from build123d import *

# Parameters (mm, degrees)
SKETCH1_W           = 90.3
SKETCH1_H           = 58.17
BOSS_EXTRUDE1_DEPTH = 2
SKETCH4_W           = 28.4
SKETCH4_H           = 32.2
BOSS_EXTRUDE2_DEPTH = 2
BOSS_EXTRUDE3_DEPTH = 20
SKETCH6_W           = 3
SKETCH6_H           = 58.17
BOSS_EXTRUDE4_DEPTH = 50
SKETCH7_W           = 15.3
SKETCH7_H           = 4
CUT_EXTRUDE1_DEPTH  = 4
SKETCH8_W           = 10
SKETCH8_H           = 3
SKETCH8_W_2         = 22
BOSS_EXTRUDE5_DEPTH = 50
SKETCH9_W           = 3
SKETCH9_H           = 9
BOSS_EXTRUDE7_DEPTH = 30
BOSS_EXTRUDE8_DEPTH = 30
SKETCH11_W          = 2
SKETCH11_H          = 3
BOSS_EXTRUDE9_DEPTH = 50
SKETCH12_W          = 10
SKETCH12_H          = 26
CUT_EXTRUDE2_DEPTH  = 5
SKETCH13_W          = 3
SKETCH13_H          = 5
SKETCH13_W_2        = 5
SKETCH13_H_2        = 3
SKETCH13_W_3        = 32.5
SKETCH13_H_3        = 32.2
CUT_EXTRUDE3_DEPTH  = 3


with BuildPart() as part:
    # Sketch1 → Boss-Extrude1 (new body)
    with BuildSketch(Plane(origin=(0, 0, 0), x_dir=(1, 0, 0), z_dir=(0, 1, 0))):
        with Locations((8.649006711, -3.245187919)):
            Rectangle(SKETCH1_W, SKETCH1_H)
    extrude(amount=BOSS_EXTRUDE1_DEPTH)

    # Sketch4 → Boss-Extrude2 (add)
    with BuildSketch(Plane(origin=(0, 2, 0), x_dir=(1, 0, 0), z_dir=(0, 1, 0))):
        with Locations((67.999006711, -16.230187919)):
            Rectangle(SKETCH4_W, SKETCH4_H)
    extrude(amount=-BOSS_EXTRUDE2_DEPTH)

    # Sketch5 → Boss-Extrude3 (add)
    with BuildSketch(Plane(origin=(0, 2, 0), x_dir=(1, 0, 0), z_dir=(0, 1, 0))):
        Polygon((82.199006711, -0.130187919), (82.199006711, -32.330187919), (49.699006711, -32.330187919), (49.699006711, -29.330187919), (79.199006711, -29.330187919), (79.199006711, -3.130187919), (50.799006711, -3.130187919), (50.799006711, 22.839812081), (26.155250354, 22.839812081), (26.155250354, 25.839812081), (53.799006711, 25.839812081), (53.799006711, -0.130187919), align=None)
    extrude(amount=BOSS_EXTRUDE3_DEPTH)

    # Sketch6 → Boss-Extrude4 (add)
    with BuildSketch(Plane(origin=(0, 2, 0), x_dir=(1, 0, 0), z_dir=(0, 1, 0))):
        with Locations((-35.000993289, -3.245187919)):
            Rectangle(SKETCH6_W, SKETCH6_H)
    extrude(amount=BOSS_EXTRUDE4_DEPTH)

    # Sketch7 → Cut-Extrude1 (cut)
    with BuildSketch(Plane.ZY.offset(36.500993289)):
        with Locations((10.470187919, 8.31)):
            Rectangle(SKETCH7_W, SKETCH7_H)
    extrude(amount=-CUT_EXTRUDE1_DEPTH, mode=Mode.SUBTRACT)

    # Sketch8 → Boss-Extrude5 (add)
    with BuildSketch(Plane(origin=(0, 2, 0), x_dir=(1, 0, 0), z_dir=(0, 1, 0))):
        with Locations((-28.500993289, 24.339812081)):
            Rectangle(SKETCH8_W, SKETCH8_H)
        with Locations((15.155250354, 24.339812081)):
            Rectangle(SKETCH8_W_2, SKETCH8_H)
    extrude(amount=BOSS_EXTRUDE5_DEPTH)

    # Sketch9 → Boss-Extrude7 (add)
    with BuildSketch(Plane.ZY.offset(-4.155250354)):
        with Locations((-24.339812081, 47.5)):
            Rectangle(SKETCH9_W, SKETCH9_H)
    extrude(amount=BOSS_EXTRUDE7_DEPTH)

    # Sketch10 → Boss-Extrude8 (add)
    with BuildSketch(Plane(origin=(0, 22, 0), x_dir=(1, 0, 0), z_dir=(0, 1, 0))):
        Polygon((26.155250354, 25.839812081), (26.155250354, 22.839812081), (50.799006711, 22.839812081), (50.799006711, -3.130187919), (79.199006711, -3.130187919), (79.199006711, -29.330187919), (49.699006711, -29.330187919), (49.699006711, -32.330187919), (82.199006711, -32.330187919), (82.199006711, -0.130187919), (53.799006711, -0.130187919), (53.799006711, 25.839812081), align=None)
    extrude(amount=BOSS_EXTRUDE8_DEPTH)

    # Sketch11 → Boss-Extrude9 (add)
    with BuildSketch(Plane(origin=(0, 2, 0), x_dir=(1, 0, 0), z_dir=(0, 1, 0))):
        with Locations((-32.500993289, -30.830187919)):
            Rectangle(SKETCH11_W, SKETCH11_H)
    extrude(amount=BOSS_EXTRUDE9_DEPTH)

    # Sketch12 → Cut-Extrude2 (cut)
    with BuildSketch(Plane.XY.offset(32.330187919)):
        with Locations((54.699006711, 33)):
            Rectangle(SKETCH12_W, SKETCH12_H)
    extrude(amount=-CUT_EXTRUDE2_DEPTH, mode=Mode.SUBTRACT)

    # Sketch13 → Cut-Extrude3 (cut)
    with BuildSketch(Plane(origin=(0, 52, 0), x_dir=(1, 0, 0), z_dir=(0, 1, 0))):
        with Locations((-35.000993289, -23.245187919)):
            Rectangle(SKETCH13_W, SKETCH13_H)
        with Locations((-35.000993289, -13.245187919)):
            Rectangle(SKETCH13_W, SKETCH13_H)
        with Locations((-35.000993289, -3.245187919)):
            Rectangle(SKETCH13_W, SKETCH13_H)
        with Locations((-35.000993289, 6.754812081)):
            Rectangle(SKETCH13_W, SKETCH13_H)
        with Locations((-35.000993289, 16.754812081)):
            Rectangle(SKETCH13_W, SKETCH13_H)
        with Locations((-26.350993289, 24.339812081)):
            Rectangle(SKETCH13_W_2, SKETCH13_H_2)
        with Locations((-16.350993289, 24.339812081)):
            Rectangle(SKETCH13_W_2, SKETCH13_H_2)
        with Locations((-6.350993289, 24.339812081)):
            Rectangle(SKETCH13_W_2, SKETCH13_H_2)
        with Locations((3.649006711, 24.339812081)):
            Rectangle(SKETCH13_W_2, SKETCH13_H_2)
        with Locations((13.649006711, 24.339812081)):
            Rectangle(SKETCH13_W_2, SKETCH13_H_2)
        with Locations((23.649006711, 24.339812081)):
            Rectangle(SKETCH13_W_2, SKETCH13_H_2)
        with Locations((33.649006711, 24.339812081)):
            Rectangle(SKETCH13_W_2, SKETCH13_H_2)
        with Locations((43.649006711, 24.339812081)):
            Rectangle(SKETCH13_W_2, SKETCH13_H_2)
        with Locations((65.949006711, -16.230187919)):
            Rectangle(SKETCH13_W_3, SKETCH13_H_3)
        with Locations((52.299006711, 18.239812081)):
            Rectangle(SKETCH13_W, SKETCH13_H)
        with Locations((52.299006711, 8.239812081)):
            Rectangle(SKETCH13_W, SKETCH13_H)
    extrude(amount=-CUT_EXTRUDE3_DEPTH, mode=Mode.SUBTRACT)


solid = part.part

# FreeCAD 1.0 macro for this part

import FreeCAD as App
import Part
import Sketcher

V = App.Vector

doc = App.newDocument("Part")
body = doc.addObject("PartDesign::Body", "Body")

# Sketch on XZ plane
sketch1 = body.newObject("Sketcher::SketchObject", "Sketch")
sketch1.AttachmentSupport = (doc.getObject("XZ_Plane"), [""])
sketch1.MapMode = "FlatFace"
sketch1.addGeometry(Part.LineSegment(V(-37, -26, 0), V(-37, 32, 0)), False)
sketch1.addGeometry(Part.LineSegment(V(-37, 32, 0), V(54, 32, 0)), False)
sketch1.addGeometry(Part.LineSegment(V(54, 32, 0), V(54, -26, 0)), False)
sketch1.addGeometry(Part.LineSegment(V(54, -26, 0), V(-37, -26, 0)), False)
sketch1.addConstraint(Sketcher.Constraint("Coincident", 0, 2, 1, 1))
sketch1.addConstraint(Sketcher.Constraint("Coincident", 1, 2, 2, 1))
sketch1.addConstraint(Sketcher.Constraint("Coincident", 2, 2, 3, 1))
sketch1.addConstraint(Sketcher.Constraint("Coincident", 3, 2, 0, 1))
sketch1.addConstraint(Sketcher.Constraint("Vertical", 0))
sketch1.addConstraint(Sketcher.Constraint("Horizontal", 1))
sketch1.addConstraint(Sketcher.Constraint("Vertical", 2))
sketch1.addConstraint(Sketcher.Constraint("Horizontal", 3))
sketch1.addConstraint(Sketcher.Constraint("DistanceX", 1, 1, 1, 2, 90.3))
sketch1.addConstraint(Sketcher.Constraint("DistanceY", 0, 1, 0, 2, 58.17))
sketch1.addConstraint(Sketcher.Constraint("DistanceX", 0, 2, -1, 1, 36.500993))
sketch1.addConstraint(Sketcher.Constraint("DistanceY", -1, 1, 0, 2, 32.330188))
pad1 = body.newObject("PartDesign::Pad", "Pad")
pad1.Profile = sketch1
pad1.Length = 2
pad1.Reversed = True

# Sketch on XZ plane
sketch2 = body.newObject("Sketcher::SketchObject", "Sketch001")
sketch2.AttachmentSupport = (doc.getObject("XZ_Plane"), [""])
sketch2.MapMode = "FlatFace"
sketch2.AttachmentOffset = App.Placement(V(0, 0, -2), App.Rotation())
sketch2.addGeometry(Part.LineSegment(V(54, 0, 0), V(54, 32, 0)), False)
sketch2.addGeometry(Part.LineSegment(V(54, 32, 0), V(82, 32, 0)), False)
sketch2.addGeometry(Part.LineSegment(V(82, 32, 0), V(82, 0, 0)), False)
sketch2.addGeometry(Part.LineSegment(V(82, 0, 0), V(54, 0, 0)), False)
sketch2.addConstraint(Sketcher.Constraint("Coincident", 0, 2, 1, 1))
sketch2.addConstraint(Sketcher.Constraint("Coincident", 1, 2, 2, 1))
sketch2.addConstraint(Sketcher.Constraint("Coincident", 2, 2, 3, 1))
sketch2.addConstraint(Sketcher.Constraint("Coincident", 3, 2, 0, 1))
sketch2.addConstraint(Sketcher.Constraint("Vertical", 0))
sketch2.addConstraint(Sketcher.Constraint("Horizontal", 1))
sketch2.addConstraint(Sketcher.Constraint("Vertical", 2))
sketch2.addConstraint(Sketcher.Constraint("Horizontal", 3))
sketch2.addConstraint(Sketcher.Constraint("DistanceX", 1, 1, 1, 2, 28.4))
sketch2.addConstraint(Sketcher.Constraint("DistanceY", 0, 1, 0, 2, 32.2))
sketch2.addConstraint(Sketcher.Constraint("DistanceX", -1, 1, 0, 2, 53.799007))
sketch2.addConstraint(Sketcher.Constraint("DistanceY", -1, 1, 0, 2, 32.330188))
pad2 = body.newObject("PartDesign::Pad", "Pad001")
pad2.Profile = sketch2
pad2.Length = 2

# Sketch on XZ plane
sketch3 = body.newObject("Sketcher::SketchObject", "Sketch002")
sketch3.AttachmentSupport = (doc.getObject("XZ_Plane"), [""])
sketch3.MapMode = "FlatFace"
sketch3.AttachmentOffset = App.Placement(V(0, 0, -2), App.Rotation())
sketch3.addGeometry(Part.LineSegment(V(82.2, 32.3, 0), V(82.2, 0.1, 0)), False)
sketch3.addGeometry(Part.LineSegment(V(82.2, 0.1, 0), V(53.8, 0.1, 0)), False)
sketch3.addGeometry(Part.LineSegment(V(53.8, 0.1, 0), V(53.8, -25.8, 0)), False)
sketch3.addGeometry(Part.LineSegment(V(53.8, -25.8, 0), V(26.2, -25.8, 0)), False)
sketch3.addGeometry(Part.LineSegment(V(26.2, -25.8, 0), V(26.2, -22.8, 0)), False)
sketch3.addGeometry(Part.LineSegment(V(26.2, -22.8, 0), V(50.8, -22.8, 0)), False)
sketch3.addGeometry(Part.LineSegment(V(50.8, -22.8, 0), V(50.8, 3.1, 0)), False)
sketch3.addGeometry(Part.LineSegment(V(50.8, 3.1, 0), V(79.2, 3.1, 0)), False)
sketch3.addGeometry(Part.LineSegment(V(79.2, 3.1, 0), V(79.2, 29.3, 0)), False)
sketch3.addGeometry(Part.LineSegment(V(79.2, 29.3, 0), V(49.7, 29.3, 0)), False)
sketch3.addGeometry(Part.LineSegment(V(49.7, 29.3, 0), V(49.7, 32.3, 0)), False)
sketch3.addGeometry(Part.LineSegment(V(49.7, 32.3, 0), V(82.2, 32.3, 0)), False)
sketch3.addConstraint(Sketcher.Constraint("Coincident", 0, 2, 1, 1))
sketch3.addConstraint(Sketcher.Constraint("Coincident", 1, 2, 2, 1))
sketch3.addConstraint(Sketcher.Constraint("Coincident", 2, 2, 3, 1))
sketch3.addConstraint(Sketcher.Constraint("Coincident", 3, 2, 4, 1))
sketch3.addConstraint(Sketcher.Constraint("Coincident", 4, 2, 5, 1))
sketch3.addConstraint(Sketcher.Constraint("Coincident", 5, 2, 6, 1))
sketch3.addConstraint(Sketcher.Constraint("Coincident", 6, 2, 7, 1))
sketch3.addConstraint(Sketcher.Constraint("Coincident", 7, 2, 8, 1))
sketch3.addConstraint(Sketcher.Constraint("Coincident", 8, 2, 9, 1))
sketch3.addConstraint(Sketcher.Constraint("Coincident", 9, 2, 10, 1))
sketch3.addConstraint(Sketcher.Constraint("Coincident", 10, 2, 11, 1))
sketch3.addConstraint(Sketcher.Constraint("Coincident", 11, 2, 0, 1))
sketch3.addConstraint(Sketcher.Constraint("Vertical", 0))
sketch3.addConstraint(Sketcher.Constraint("Horizontal", 1))
sketch3.addConstraint(Sketcher.Constraint("Vertical", 2))
sketch3.addConstraint(Sketcher.Constraint("Horizontal", 3))
sketch3.addConstraint(Sketcher.Constraint("Vertical", 4))
sketch3.addConstraint(Sketcher.Constraint("Horizontal", 5))
sketch3.addConstraint(Sketcher.Constraint("Vertical", 6))
sketch3.addConstraint(Sketcher.Constraint("Horizontal", 7))
sketch3.addConstraint(Sketcher.Constraint("Vertical", 8))
sketch3.addConstraint(Sketcher.Constraint("Horizontal", 9))
sketch3.addConstraint(Sketcher.Constraint("Vertical", 10))
sketch3.addConstraint(Sketcher.Constraint("Horizontal", 11))
sketch3.addConstraint(Sketcher.Constraint("Equal", 1, 7))
sketch3.addConstraint(Sketcher.Constraint("Equal", 2, 6))
sketch3.addConstraint(Sketcher.Constraint("Equal", 4, 10))
sketch3.addConstraint(Sketcher.Constraint("DistanceY", 4, 1, 4, 2, 3.0))
sketch3.addConstraint(Sketcher.Constraint("DistanceX", 1, 2, 1, 1, 28.4))
sketch3.addConstraint(Sketcher.Constraint("DistanceX", 9, 2, 9, 1, 29.5))
sketch3.addConstraint(Sketcher.Constraint("DistanceX", 11, 1, 11, 2, 32.5))
sketch3.addConstraint(Sketcher.Constraint("DistanceY", 0, 2, 0, 1, 32.2))
sketch3.addConstraint(Sketcher.Constraint("DistanceY", 2, 2, 2, 1, 25.97))
sketch3.addConstraint(Sketcher.Constraint("DistanceX", 3, 2, 3, 1, 27.643756))
sketch3.addConstraint(Sketcher.Constraint("DistanceX", -1, 1, 3, 2, 26.15525))
sketch3.addConstraint(Sketcher.Constraint("DistanceY", -1, 1, 0, 2, 0.130188))
pad3 = body.newObject("PartDesign::Pad", "Pad002")
pad3.Profile = sketch3
pad3.Length = 20
pad3.Reversed = True

# Sketch on XZ plane
sketch4 = body.newObject("Sketcher::SketchObject", "Sketch003")
sketch4.AttachmentSupport = (doc.getObject("XZ_Plane"), [""])
sketch4.MapMode = "FlatFace"
sketch4.AttachmentOffset = App.Placement(V(0, 0, -2), App.Rotation())
sketch4.addGeometry(Part.LineSegment(V(-36.5, -25.8, 0), V(-36.5, 32.3, 0)), False)
sketch4.addGeometry(Part.LineSegment(V(-36.5, 32.3, 0), V(-33.5, 32.3, 0)), False)
sketch4.addGeometry(Part.LineSegment(V(-33.5, 32.3, 0), V(-33.5, -25.8, 0)), False)
sketch4.addGeometry(Part.LineSegment(V(-33.5, -25.8, 0), V(-36.5, -25.8, 0)), False)
sketch4.addConstraint(Sketcher.Constraint("Coincident", 0, 2, 1, 1))
sketch4.addConstraint(Sketcher.Constraint("Coincident", 1, 2, 2, 1))
sketch4.addConstraint(Sketcher.Constraint("Coincident", 2, 2, 3, 1))
sketch4.addConstraint(Sketcher.Constraint("Coincident", 3, 2, 0, 1))
sketch4.addConstraint(Sketcher.Constraint("Vertical", 0))
sketch4.addConstraint(Sketcher.Constraint("Horizontal", 1))
sketch4.addConstraint(Sketcher.Constraint("Vertical", 2))
sketch4.addConstraint(Sketcher.Constraint("Horizontal", 3))
sketch4.addConstraint(Sketcher.Constraint("DistanceX", 1, 1, 1, 2, 3.0))
sketch4.addConstraint(Sketcher.Constraint("DistanceY", 0, 1, 0, 2, 58.17))
sketch4.addConstraint(Sketcher.Constraint("DistanceX", 0, 2, -1, 1, 36.500993))
sketch4.addConstraint(Sketcher.Constraint("DistanceY", -1, 1, 0, 2, 32.330188))
pad4 = body.newObject("PartDesign::Pad", "Pad003")
pad4.Profile = sketch4
pad4.Length = 50
pad4.Reversed = True

# Sketch on YZ plane
sketch5 = body.newObject("Sketcher::SketchObject", "Sketch004")
sketch5.AttachmentSupport = (doc.getObject("YZ_Plane"), [""])
sketch5.MapMode = "FlatFace"
sketch5.AttachmentOffset = App.Placement(V(0, 0, -36.500993), App.Rotation())
sketch5.addGeometry(Part.LineSegment(V(10.3, 2.8, 0), V(6.3, 2.8, 0)), False)
sketch5.addGeometry(Part.LineSegment(V(6.3, 2.8, 0), V(6.3, 18.1, 0)), False)
sketch5.addGeometry(Part.LineSegment(V(6.3, 18.1, 0), V(10.3, 18.1, 0)), False)
sketch5.addGeometry(Part.LineSegment(V(10.3, 18.1, 0), V(10.3, 2.8, 0)), False)
sketch5.addConstraint(Sketcher.Constraint("Coincident", 0, 2, 1, 1))
sketch5.addConstraint(Sketcher.Constraint("Coincident", 1, 2, 2, 1))
sketch5.addConstraint(Sketcher.Constraint("Coincident", 2, 2, 3, 1))
sketch5.addConstraint(Sketcher.Constraint("Coincident", 3, 2, 0, 1))
sketch5.addConstraint(Sketcher.Constraint("Horizontal", 0))
sketch5.addConstraint(Sketcher.Constraint("Vertical", 1))
sketch5.addConstraint(Sketcher.Constraint("Horizontal", 2))
sketch5.addConstraint(Sketcher.Constraint("Vertical", 3))
sketch5.addConstraint(Sketcher.Constraint("DistanceX", 0, 2, 0, 1, 4.0))
sketch5.addConstraint(Sketcher.Constraint("DistanceY", 1, 1, 1, 2, 15.3))
sketch5.addConstraint(Sketcher.Constraint("DistanceX", -1, 1, 0, 2, 6.31))
sketch5.addConstraint(Sketcher.Constraint("DistanceY", -1, 1, 0, 2, 2.820188))
pocket1 = body.newObject("PartDesign::Pocket", "Pocket")
pocket1.Profile = sketch5
pocket1.Length = 4
pocket1.Reversed = True

# Sketch on XZ plane
sketch6 = body.newObject("Sketcher::SketchObject", "Sketch005")
sketch6.AttachmentSupport = (doc.getObject("XZ_Plane"), [""])
sketch6.MapMode = "FlatFace"
sketch6.AttachmentOffset = App.Placement(V(0, 0, -2), App.Rotation())
sketch6.addGeometry(Part.LineSegment(V(-33.5, -25.8, 0), V(-33.5, -22.8, 0)), False)
sketch6.addGeometry(Part.LineSegment(V(-33.5, -22.8, 0), V(-23.5, -22.8, 0)), False)
sketch6.addGeometry(Part.LineSegment(V(-23.5, -22.8, 0), V(-23.5, -25.8, 0)), False)
sketch6.addGeometry(Part.LineSegment(V(-23.5, -25.8, 0), V(-33.5, -25.8, 0)), False)
sketch6.addGeometry(Part.LineSegment(V(4.2, -25.8, 0), V(4.2, -22.8, 0)), False)
sketch6.addGeometry(Part.LineSegment(V(4.2, -22.8, 0), V(26.2, -22.8, 0)), False)
sketch6.addGeometry(Part.LineSegment(V(26.2, -22.8, 0), V(26.2, -25.8, 0)), False)
sketch6.addGeometry(Part.LineSegment(V(26.2, -25.8, 0), V(4.2, -25.8, 0)), False)
sketch6.addConstraint(Sketcher.Constraint("Coincident", 0, 2, 1, 1))
sketch6.addConstraint(Sketcher.Constraint("Coincident", 1, 2, 2, 1))
sketch6.addConstraint(Sketcher.Constraint("Coincident", 2, 2, 3, 1))
sketch6.addConstraint(Sketcher.Constraint("Coincident", 3, 2, 0, 1))
sketch6.addConstraint(Sketcher.Constraint("Coincident", 4, 2, 5, 1))
sketch6.addConstraint(Sketcher.Constraint("Coincident", 5, 2, 6, 1))
sketch6.addConstraint(Sketcher.Constraint("Coincident", 6, 2, 7, 1))
sketch6.addConstraint(Sketcher.Constraint("Coincident", 7, 2, 4, 1))
sketch6.addConstraint(Sketcher.Constraint("Vertical", 0))
sketch6.addConstraint(Sketcher.Constraint("Horizontal", 1))
sketch6.addConstraint(Sketcher.Constraint("Vertical", 2))
sketch6.addConstraint(Sketcher.Constraint("Horizontal", 3))
sketch6.addConstraint(Sketcher.Constraint("Vertical", 4))
sketch6.addConstraint(Sketcher.Constraint("Horizontal", 5))
sketch6.addConstraint(Sketcher.Constraint("Vertical", 6))
sketch6.addConstraint(Sketcher.Constraint("Horizontal", 7))
sketch6.addConstraint(Sketcher.Constraint("Horizontal", 1, 2, 4, 2))
sketch6.addConstraint(Sketcher.Constraint("Horizontal", 3, 2, 6, 2))
sketch6.addConstraint(Sketcher.Constraint("DistanceX", 1, 1, 1, 2, 10.0))
sketch6.addConstraint(Sketcher.Constraint("DistanceX", 5, 1, 5, 2, 22.0))
sketch6.addConstraint(Sketcher.Constraint("DistanceY", 0, 1, 0, 2, 3.0))
sketch6.addConstraint(Sketcher.Constraint("DistanceX", -1, 1, 4, 2, 4.15525))
sketch6.addConstraint(Sketcher.Constraint("DistanceX", 0, 2, -1, 1, 33.500993))
sketch6.addConstraint(Sketcher.Constraint("DistanceY", 0, 2, -1, 1, 22.839812))
pad5 = body.newObject("PartDesign::Pad", "Pad004")
pad5.Profile = sketch6
pad5.Length = 50
pad5.Reversed = True

# Sketch on YZ plane
sketch7 = body.newObject("Sketcher::SketchObject", "Sketch006")
sketch7.AttachmentSupport = (doc.getObject("YZ_Plane"), [""])
sketch7.MapMode = "FlatFace"
sketch7.AttachmentOffset = App.Placement(V(0, 0, 4.15525), App.Rotation())
sketch7.addGeometry(Part.LineSegment(V(52, -25.8, 0), V(43, -25.8, 0)), False)
sketch7.addGeometry(Part.LineSegment(V(43, -25.8, 0), V(43, -22.8, 0)), False)
sketch7.addGeometry(Part.LineSegment(V(43, -22.8, 0), V(52, -22.8, 0)), False)
sketch7.addGeometry(Part.LineSegment(V(52, -22.8, 0), V(52, -25.8, 0)), False)
sketch7.addConstraint(Sketcher.Constraint("Coincident", 0, 2, 1, 1))
sketch7.addConstraint(Sketcher.Constraint("Coincident", 1, 2, 2, 1))
sketch7.addConstraint(Sketcher.Constraint("Coincident", 2, 2, 3, 1))
sketch7.addConstraint(Sketcher.Constraint("Coincident", 3, 2, 0, 1))
sketch7.addConstraint(Sketcher.Constraint("Horizontal", 0))
sketch7.addConstraint(Sketcher.Constraint("Vertical", 1))
sketch7.addConstraint(Sketcher.Constraint("Horizontal", 2))
sketch7.addConstraint(Sketcher.Constraint("Vertical", 3))
sketch7.addConstraint(Sketcher.Constraint("DistanceX", 0, 2, 0, 1, 9.0))
sketch7.addConstraint(Sketcher.Constraint("DistanceY", 1, 1, 1, 2, 3.0))
sketch7.addConstraint(Sketcher.Constraint("DistanceX", -1, 1, 0, 2, 43.0))
sketch7.addConstraint(Sketcher.Constraint("DistanceY", 0, 2, -1, 1, 25.839812))
pad6 = body.newObject("PartDesign::Pad", "Pad005")
pad6.Profile = sketch7
pad6.Length = 30
pad6.Reversed = True

# Sketch on XZ plane
sketch8 = body.newObject("Sketcher::SketchObject", "Sketch007")
sketch8.AttachmentSupport = (doc.getObject("XZ_Plane"), [""])
sketch8.MapMode = "FlatFace"
sketch8.AttachmentOffset = App.Placement(V(0, 0, -22), App.Rotation())
sketch8.addGeometry(Part.LineSegment(V(26.2, -25.8, 0), V(26.2, -22.8, 0)), False)
sketch8.addGeometry(Part.LineSegment(V(26.2, -22.8, 0), V(50.8, -22.8, 0)), False)
sketch8.addGeometry(Part.LineSegment(V(50.8, -22.8, 0), V(50.8, 3.1, 0)), False)
sketch8.addGeometry(Part.LineSegment(V(50.8, 3.1, 0), V(79.2, 3.1, 0)), False)
sketch8.addGeometry(Part.LineSegment(V(79.2, 3.1, 0), V(79.2, 29.3, 0)), False)
sketch8.addGeometry(Part.LineSegment(V(79.2, 29.3, 0), V(49.7, 29.3, 0)), False)
sketch8.addGeometry(Part.LineSegment(V(49.7, 29.3, 0), V(49.7, 32.3, 0)), False)
sketch8.addGeometry(Part.LineSegment(V(49.7, 32.3, 0), V(82.2, 32.3, 0)), False)
sketch8.addGeometry(Part.LineSegment(V(82.2, 32.3, 0), V(82.2, 0.1, 0)), False)
sketch8.addGeometry(Part.LineSegment(V(82.2, 0.1, 0), V(53.8, 0.1, 0)), False)
sketch8.addGeometry(Part.LineSegment(V(53.8, 0.1, 0), V(53.8, -25.8, 0)), False)
sketch8.addGeometry(Part.LineSegment(V(53.8, -25.8, 0), V(26.2, -25.8, 0)), False)
sketch8.addConstraint(Sketcher.Constraint("Coincident", 0, 2, 1, 1))
sketch8.addConstraint(Sketcher.Constraint("Coincident", 1, 2, 2, 1))
sketch8.addConstraint(Sketcher.Constraint("Coincident", 2, 2, 3, 1))
sketch8.addConstraint(Sketcher.Constraint("Coincident", 3, 2, 4, 1))
sketch8.addConstraint(Sketcher.Constraint("Coincident", 4, 2, 5, 1))
sketch8.addConstraint(Sketcher.Constraint("Coincident", 5, 2, 6, 1))
sketch8.addConstraint(Sketcher.Constraint("Coincident", 6, 2, 7, 1))
sketch8.addConstraint(Sketcher.Constraint("Coincident", 7, 2, 8, 1))
sketch8.addConstraint(Sketcher.Constraint("Coincident", 8, 2, 9, 1))
sketch8.addConstraint(Sketcher.Constraint("Coincident", 9, 2, 10, 1))
sketch8.addConstraint(Sketcher.Constraint("Coincident", 10, 2, 11, 1))
sketch8.addConstraint(Sketcher.Constraint("Coincident", 11, 2, 0, 1))
sketch8.addConstraint(Sketcher.Constraint("Vertical", 0))
sketch8.addConstraint(Sketcher.Constraint("Horizontal", 1))
sketch8.addConstraint(Sketcher.Constraint("Vertical", 2))
sketch8.addConstraint(Sketcher.Constraint("Horizontal", 3))
sketch8.addConstraint(Sketcher.Constraint("Vertical", 4))
sketch8.addConstraint(Sketcher.Constraint("Horizontal", 5))
sketch8.addConstraint(Sketcher.Constraint("Vertical", 6))
sketch8.addConstraint(Sketcher.Constraint("Horizontal", 7))
sketch8.addConstraint(Sketcher.Constraint("Vertical", 8))
sketch8.addConstraint(Sketcher.Constraint("Horizontal", 9))
sketch8.addConstraint(Sketcher.Constraint("Vertical", 10))
sketch8.addConstraint(Sketcher.Constraint("Horizontal", 11))
sketch8.addConstraint(Sketcher.Constraint("Equal", 3, 9))
sketch8.addConstraint(Sketcher.Constraint("Equal", 0, 6))
sketch8.addConstraint(Sketcher.Constraint("Equal", 2, 10))
sketch8.addConstraint(Sketcher.Constraint("DistanceY", 0, 1, 0, 2, 3.0))
sketch8.addConstraint(Sketcher.Constraint("DistanceX", 3, 1, 3, 2, 28.4))
sketch8.addConstraint(Sketcher.Constraint("DistanceX", 5, 2, 5, 1, 29.5))
sketch8.addConstraint(Sketcher.Constraint("DistanceX", 7, 1, 7, 2, 32.5))
sketch8.addConstraint(Sketcher.Constraint("DistanceY", 4, 1, 4, 2, 26.2))
sketch8.addConstraint(Sketcher.Constraint("DistanceY", 2, 1, 2, 2, 25.97))
sketch8.addConstraint(Sketcher.Constraint("DistanceX", 1, 1, 1, 2, 24.643756))
sketch8.addConstraint(Sketcher.Constraint("DistanceX", -1, 1, 0, 2, 26.15525))
sketch8.addConstraint(Sketcher.Constraint("DistanceY", 0, 2, -1, 1, 22.839812))
pad7 = body.newObject("PartDesign::Pad", "Pad006")
pad7.Profile = sketch8
pad7.Length = 30
pad7.Reversed = True

# Sketch on XZ plane
sketch9 = body.newObject("Sketcher::SketchObject", "Sketch008")
sketch9.AttachmentSupport = (doc.getObject("XZ_Plane"), [""])
sketch9.MapMode = "FlatFace"
sketch9.AttachmentOffset = App.Placement(V(0, 0, -2), App.Rotation())
sketch9.addGeometry(Part.LineSegment(V(-33.5, 29.3, 0), V(-33.5, 32.3, 0)), False)
sketch9.addGeometry(Part.LineSegment(V(-33.5, 32.3, 0), V(-31.5, 32.3, 0)), False)
sketch9.addGeometry(Part.LineSegment(V(-31.5, 32.3, 0), V(-31.5, 29.3, 0)), False)
sketch9.addGeometry(Part.LineSegment(V(-31.5, 29.3, 0), V(-33.5, 29.3, 0)), False)
sketch9.addConstraint(Sketcher.Constraint("Coincident", 0, 2, 1, 1))
sketch9.addConstraint(Sketcher.Constraint("Coincident", 1, 2, 2, 1))
sketch9.addConstraint(Sketcher.Constraint("Coincident", 2, 2, 3, 1))
sketch9.addConstraint(Sketcher.Constraint("Coincident", 3, 2, 0, 1))
sketch9.addConstraint(Sketcher.Constraint("Vertical", 0))
sketch9.addConstraint(Sketcher.Constraint("Horizontal", 1))
sketch9.addConstraint(Sketcher.Constraint("Vertical", 2))
sketch9.addConstraint(Sketcher.Constraint("Horizontal", 3))
sketch9.addConstraint(Sketcher.Constraint("DistanceX", 1, 1, 1, 2, 2.0))
sketch9.addConstraint(Sketcher.Constraint("DistanceY", 0, 1, 0, 2, 3.0))
sketch9.addConstraint(Sketcher.Constraint("DistanceX", 0, 2, -1, 1, 33.500993))
sketch9.addConstraint(Sketcher.Constraint("DistanceY", -1, 1, 0, 2, 32.330188))
pad8 = body.newObject("PartDesign::Pad", "Pad007")
pad8.Profile = sketch9
pad8.Length = 50
pad8.Reversed = True

# Sketch on XY plane
sketch10 = body.newObject("Sketcher::SketchObject", "Sketch009")
sketch10.AttachmentSupport = (doc.getObject("XY_Plane"), [""])
sketch10.MapMode = "FlatFace"
sketch10.AttachmentOffset = App.Placement(V(0, 0, 32.330188), App.Rotation())
sketch10.addGeometry(Part.LineSegment(V(50, 46, 0), V(50, 20, 0)), False)
sketch10.addGeometry(Part.LineSegment(V(50, 20, 0), V(60, 20, 0)), False)
sketch10.addGeometry(Part.LineSegment(V(60, 20, 0), V(60, 46, 0)), False)
sketch10.addGeometry(Part.LineSegment(V(60, 46, 0), V(50, 46, 0)), False)
sketch10.addConstraint(Sketcher.Constraint("Coincident", 0, 2, 1, 1))
sketch10.addConstraint(Sketcher.Constraint("Coincident", 1, 2, 2, 1))
sketch10.addConstraint(Sketcher.Constraint("Coincident", 2, 2, 3, 1))
sketch10.addConstraint(Sketcher.Constraint("Coincident", 3, 2, 0, 1))
sketch10.addConstraint(Sketcher.Constraint("Vertical", 0))
sketch10.addConstraint(Sketcher.Constraint("Horizontal", 1))
sketch10.addConstraint(Sketcher.Constraint("Vertical", 2))
sketch10.addConstraint(Sketcher.Constraint("Horizontal", 3))
sketch10.addConstraint(Sketcher.Constraint("DistanceX", 1, 1, 1, 2, 10.0))
sketch10.addConstraint(Sketcher.Constraint("DistanceY", 0, 2, 0, 1, 26.0))
sketch10.addConstraint(Sketcher.Constraint("DistanceY", -1, 1, 0, 2, 20.0))
sketch10.addConstraint(Sketcher.Constraint("DistanceX", -1, 1, 0, 2, 49.699007))
pocket2 = body.newObject("PartDesign::Pocket", "Pocket001")
pocket2.Profile = sketch10
pocket2.Length = 5

# Sketch on XZ plane
sketch11 = body.newObject("Sketcher::SketchObject", "Sketch010")
sketch11.AttachmentSupport = (doc.getObject("XZ_Plane"), [""])
sketch11.MapMode = "FlatFace"
sketch11.AttachmentOffset = App.Placement(V(0, 0, -52), App.Rotation())
sketch11.addGeometry(Part.LineSegment(V(-36.5, 20.7, 0), V(-36.5, 25.7, 0)), False)
sketch11.addGeometry(Part.LineSegment(V(-36.5, 25.7, 0), V(-33.5, 25.7, 0)), False)
sketch11.addGeometry(Part.LineSegment(V(-33.5, 25.7, 0), V(-33.5, 20.7, 0)), False)
sketch11.addGeometry(Part.LineSegment(V(-33.5, 20.7, 0), V(-36.5, 20.7, 0)), False)
sketch11.addGeometry(Part.LineSegment(V(-36.5, 10.7, 0), V(-36.5, 15.7, 0)), False)
sketch11.addGeometry(Part.LineSegment(V(-36.5, 15.7, 0), V(-33.5, 15.7, 0)), False)
sketch11.addGeometry(Part.LineSegment(V(-33.5, 15.7, 0), V(-33.5, 10.7, 0)), False)
sketch11.addGeometry(Part.LineSegment(V(-33.5, 10.7, 0), V(-36.5, 10.7, 0)), False)
sketch11.addGeometry(Part.LineSegment(V(-36.5, 0.7, 0), V(-36.5, 5.7, 0)), False)
sketch11.addGeometry(Part.LineSegment(V(-36.5, 5.7, 0), V(-33.5, 5.7, 0)), False)
sketch11.addGeometry(Part.LineSegment(V(-33.5, 5.7, 0), V(-33.5, 0.7, 0)), False)
sketch11.addGeometry(Part.LineSegment(V(-33.5, 0.7, 0), V(-36.5, 0.7, 0)), False)
sketch11.addGeometry(Part.LineSegment(V(-36.5, -9.3, 0), V(-36.5, -4.3, 0)), False)
sketch11.addGeometry(Part.LineSegment(V(-36.5, -4.3, 0), V(-33.5, -4.3, 0)), False)
sketch11.addGeometry(Part.LineSegment(V(-33.5, -4.3, 0), V(-33.5, -9.3, 0)), False)
sketch11.addGeometry(Part.LineSegment(V(-33.5, -9.3, 0), V(-36.5, -9.3, 0)), False)
sketch11.addGeometry(Part.LineSegment(V(-36.5, -19.3, 0), V(-36.5, -14.3, 0)), False)
sketch11.addGeometry(Part.LineSegment(V(-36.5, -14.3, 0), V(-33.5, -14.3, 0)), False)
sketch11.addGeometry(Part.LineSegment(V(-33.5, -14.3, 0), V(-33.5, -19.3, 0)), False)
sketch11.addGeometry(Part.LineSegment(V(-33.5, -19.3, 0), V(-36.5, -19.3, 0)), False)
sketch11.addGeometry(Part.LineSegment(V(-28.9, -25.8, 0), V(-28.9, -22.8, 0)), False)
sketch11.addGeometry(Part.LineSegment(V(-28.9, -22.8, 0), V(-23.9, -22.8, 0)), False)
sketch11.addGeometry(Part.LineSegment(V(-23.9, -22.8, 0), V(-23.9, -25.8, 0)), False)
sketch11.addGeometry(Part.LineSegment(V(-23.9, -25.8, 0), V(-28.9, -25.8, 0)), False)
sketch11.addGeometry(Part.LineSegment(V(-18.9, -25.8, 0), V(-18.9, -22.8, 0)), False)
sketch11.addGeometry(Part.LineSegment(V(-18.9, -22.8, 0), V(-13.9, -22.8, 0)), False)
sketch11.addGeometry(Part.LineSegment(V(-13.9, -22.8, 0), V(-13.9, -25.8, 0)), False)
sketch11.addGeometry(Part.LineSegment(V(-13.9, -25.8, 0), V(-18.9, -25.8, 0)), False)
sketch11.addGeometry(Part.LineSegment(V(-8.9, -25.8, 0), V(-8.9, -22.8, 0)), False)
sketch11.addGeometry(Part.LineSegment(V(-8.9, -22.8, 0), V(-3.9, -22.8, 0)), False)
sketch11.addGeometry(Part.LineSegment(V(-3.9, -22.8, 0), V(-3.9, -25.8, 0)), False)
sketch11.addGeometry(Part.LineSegment(V(-3.9, -25.8, 0), V(-8.9, -25.8, 0)), False)
sketch11.addGeometry(Part.LineSegment(V(1.1, -25.8, 0), V(1.1, -22.8, 0)), False)
sketch11.addGeometry(Part.LineSegment(V(1.1, -22.8, 0), V(6.1, -22.8, 0)), False)
sketch11.addGeometry(Part.LineSegment(V(6.1, -22.8, 0), V(6.1, -25.8, 0)), False)
sketch11.addGeometry(Part.LineSegment(V(6.1, -25.8, 0), V(1.1, -25.8, 0)), False)
sketch11.addGeometry(Part.LineSegment(V(11.1, -25.8, 0), V(11.1, -22.8, 0)), False)
sketch11.addGeometry(Part.LineSegment(V(11.1, -22.8, 0), V(16.1, -22.8, 0)), False)
sketch11.addGeometry(Part.LineSegment(V(16.1, -22.8, 0), V(16.1, -25.8, 0)), False)
sketch11.addGeometry(Part.LineSegment(V(16.1, -25.8, 0), V(11.1, -25.8, 0)), False)
sketch11.addGeometry(Part.LineSegment(V(21.1, -25.8, 0), V(21.1, -22.8, 0)), False)
sketch11.addGeometry(Part.LineSegment(V(21.1, -22.8, 0), V(26.1, -22.8, 0)), False)
sketch11.addGeometry(Part.LineSegment(V(26.1, -22.8, 0), V(26.1, -25.8, 0)), False)
sketch11.addGeometry(Part.LineSegment(V(26.1, -25.8, 0), V(21.1, -25.8, 0)), False)
sketch11.addGeometry(Part.LineSegment(V(31.1, -25.8, 0), V(31.1, -22.8, 0)), False)
sketch11.addGeometry(Part.LineSegment(V(31.1, -22.8, 0), V(36.1, -22.8, 0)), False)
sketch11.addGeometry(Part.LineSegment(V(36.1, -22.8, 0), V(36.1, -25.8, 0)), False)
sketch11.addGeometry(Part.LineSegment(V(36.1, -25.8, 0), V(31.1, -25.8, 0)), False)
sketch11.addGeometry(Part.LineSegment(V(41.1, -25.8, 0), V(41.1, -22.8, 0)), False)
sketch11.addGeometry(Part.LineSegment(V(41.1, -22.8, 0), V(46.1, -22.8, 0)), False)
sketch11.addGeometry(Part.LineSegment(V(46.1, -22.8, 0), V(46.1, -25.8, 0)), False)
sketch11.addGeometry(Part.LineSegment(V(46.1, -25.8, 0), V(41.1, -25.8, 0)), False)
sketch11.addGeometry(Part.LineSegment(V(49.7, 0.1, 0), V(49.7, 32.3, 0)), False)
sketch11.addGeometry(Part.LineSegment(V(49.7, 32.3, 0), V(82.2, 32.3, 0)), False)
sketch11.addGeometry(Part.LineSegment(V(82.2, 32.3, 0), V(82.2, 0.1, 0)), False)
sketch11.addGeometry(Part.LineSegment(V(82.2, 0.1, 0), V(49.7, 0.1, 0)), False)
sketch11.addGeometry(Part.LineSegment(V(50.8, -20.7, 0), V(50.8, -15.7, 0)), False)
sketch11.addGeometry(Part.LineSegment(V(50.8, -15.7, 0), V(53.8, -15.7, 0)), False)
sketch11.addGeometry(Part.LineSegment(V(53.8, -15.7, 0), V(53.8, -20.7, 0)), False)
sketch11.addGeometry(Part.LineSegment(V(53.8, -20.7, 0), V(50.8, -20.7, 0)), False)
sketch11.addGeometry(Part.LineSegment(V(50.8, -10.7, 0), V(50.8, -5.7, 0)), False)
sketch11.addGeometry(Part.LineSegment(V(50.8, -5.7, 0), V(53.8, -5.7, 0)), False)
sketch11.addGeometry(Part.LineSegment(V(53.8, -5.7, 0), V(53.8, -10.7, 0)), False)
sketch11.addGeometry(Part.LineSegment(V(53.8, -10.7, 0), V(50.8, -10.7, 0)), False)
sketch11.addConstraint(Sketcher.Constraint("Coincident", 0, 2, 1, 1))
sketch11.addConstraint(Sketcher.Constraint("Coincident", 1, 2, 2, 1))
sketch11.addConstraint(Sketcher.Constraint("Coincident", 2, 2, 3, 1))
sketch11.addConstraint(Sketcher.Constraint("Coincident", 3, 2, 0, 1))
sketch11.addConstraint(Sketcher.Constraint("Coincident", 4, 2, 5, 1))
sketch11.addConstraint(Sketcher.Constraint("Coincident", 5, 2, 6, 1))
sketch11.addConstraint(Sketcher.Constraint("Coincident", 6, 2, 7, 1))
sketch11.addConstraint(Sketcher.Constraint("Coincident", 7, 2, 4, 1))
sketch11.addConstraint(Sketcher.Constraint("Coincident", 8, 2, 9, 1))
sketch11.addConstraint(Sketcher.Constraint("Coincident", 9, 2, 10, 1))
sketch11.addConstraint(Sketcher.Constraint("Coincident", 10, 2, 11, 1))
sketch11.addConstraint(Sketcher.Constraint("Coincident", 11, 2, 8, 1))
sketch11.addConstraint(Sketcher.Constraint("Coincident", 12, 2, 13, 1))
sketch11.addConstraint(Sketcher.Constraint("Coincident", 13, 2, 14, 1))
sketch11.addConstraint(Sketcher.Constraint("Coincident", 14, 2, 15, 1))
sketch11.addConstraint(Sketcher.Constraint("Coincident", 15, 2, 12, 1))
sketch11.addConstraint(Sketcher.Constraint("Coincident", 16, 2, 17, 1))
sketch11.addConstraint(Sketcher.Constraint("Coincident", 17, 2, 18, 1))
sketch11.addConstraint(Sketcher.Constraint("Coincident", 18, 2, 19, 1))
sketch11.addConstraint(Sketcher.Constraint("Coincident", 19, 2, 16, 1))
sketch11.addConstraint(Sketcher.Constraint("Coincident", 20, 2, 21, 1))
sketch11.addConstraint(Sketcher.Constraint("Coincident", 21, 2, 22, 1))
sketch11.addConstraint(Sketcher.Constraint("Coincident", 22, 2, 23, 1))
sketch11.addConstraint(Sketcher.Constraint("Coincident", 23, 2, 20, 1))
sketch11.addConstraint(Sketcher.Constraint("Coincident", 24, 2, 25, 1))
sketch11.addConstraint(Sketcher.Constraint("Coincident", 25, 2, 26, 1))
sketch11.addConstraint(Sketcher.Constraint("Coincident", 26, 2, 27, 1))
sketch11.addConstraint(Sketcher.Constraint("Coincident", 27, 2, 24, 1))
sketch11.addConstraint(Sketcher.Constraint("Coincident", 28, 2, 29, 1))
sketch11.addConstraint(Sketcher.Constraint("Coincident", 29, 2, 30, 1))
sketch11.addConstraint(Sketcher.Constraint("Coincident", 30, 2, 31, 1))
sketch11.addConstraint(Sketcher.Constraint("Coincident", 31, 2, 28, 1))
sketch11.addConstraint(Sketcher.Constraint("Coincident", 32, 2, 33, 1))
sketch11.addConstraint(Sketcher.Constraint("Coincident", 33, 2, 34, 1))
sketch11.addConstraint(Sketcher.Constraint("Coincident", 34, 2, 35, 1))
sketch11.addConstraint(Sketcher.Constraint("Coincident", 35, 2, 32, 1))
sketch11.addConstraint(Sketcher.Constraint("Coincident", 36, 2, 37, 1))
sketch11.addConstraint(Sketcher.Constraint("Coincident", 37, 2, 38, 1))
sketch11.addConstraint(Sketcher.Constraint("Coincident", 38, 2, 39, 1))
sketch11.addConstraint(Sketcher.Constraint("Coincident", 39, 2, 36, 1))
sketch11.addConstraint(Sketcher.Constraint("Coincident", 40, 2, 41, 1))
sketch11.addConstraint(Sketcher.Constraint("Coincident", 41, 2, 42, 1))
sketch11.addConstraint(Sketcher.Constraint("Coincident", 42, 2, 43, 1))
sketch11.addConstraint(Sketcher.Constraint("Coincident", 43, 2, 40, 1))
sketch11.addConstraint(Sketcher.Constraint("Coincident", 44, 2, 45, 1))
sketch11.addConstraint(Sketcher.Constraint("Coincident", 45, 2, 46, 1))
sketch11.addConstraint(Sketcher.Constraint("Coincident", 46, 2, 47, 1))
sketch11.addConstraint(Sketcher.Constraint("Coincident", 47, 2, 44, 1))
sketch11.addConstraint(Sketcher.Constraint("Coincident", 48, 2, 49, 1))
sketch11.addConstraint(Sketcher.Constraint("Coincident", 49, 2, 50, 1))
sketch11.addConstraint(Sketcher.Constraint("Coincident", 50, 2, 51, 1))
sketch11.addConstraint(Sketcher.Constraint("Coincident", 51, 2, 48, 1))
sketch11.addConstraint(Sketcher.Constraint("Coincident", 52, 2, 53, 1))
sketch11.addConstraint(Sketcher.Constraint("Coincident", 53, 2, 54, 1))
sketch11.addConstraint(Sketcher.Constraint("Coincident", 54, 2, 55, 1))
sketch11.addConstraint(Sketcher.Constraint("Coincident", 55, 2, 52, 1))
sketch11.addConstraint(Sketcher.Constraint("Coincident", 56, 2, 57, 1))
sketch11.addConstraint(Sketcher.Constraint("Coincident", 57, 2, 58, 1))
sketch11.addConstraint(Sketcher.Constraint("Coincident", 58, 2, 59, 1))
sketch11.addConstraint(Sketcher.Constraint("Coincident", 59, 2, 56, 1))
sketch11.addConstraint(Sketcher.Constraint("Coincident", 60, 2, 61, 1))
sketch11.addConstraint(Sketcher.Constraint("Coincident", 61, 2, 62, 1))
sketch11.addConstraint(Sketcher.Constraint("Coincident", 62, 2, 63, 1))
sketch11.addConstraint(Sketcher.Constraint("Coincident", 63, 2, 60, 1))
sketch11.addConstraint(Sketcher.Constraint("Vertical", 0))
sketch11.addConstraint(Sketcher.Constraint("Horizontal", 1))
sketch11.addConstraint(Sketcher.Constraint("Vertical", 2))
sketch11.addConstraint(Sketcher.Constraint("Horizontal", 3))
sketch11.addConstraint(Sketcher.Constraint("Vertical", 4))
sketch11.addConstraint(Sketcher.Constraint("Horizontal", 5))
sketch11.addConstraint(Sketcher.Constraint("Vertical", 6))
sketch11.addConstraint(Sketcher.Constraint("Horizontal", 7))
sketch11.addConstraint(Sketcher.Constraint("Vertical", 8))
sketch11.addConstraint(Sketcher.Constraint("Horizontal", 9))
sketch11.addConstraint(Sketcher.Constraint("Vertical", 10))
sketch11.addConstraint(Sketcher.Constraint("Horizontal", 11))
sketch11.addConstraint(Sketcher.Constraint("Vertical", 12))
sketch11.addConstraint(Sketcher.Constraint("Horizontal", 13))
sketch11.addConstraint(Sketcher.Constraint("Vertical", 14))
sketch11.addConstraint(Sketcher.Constraint("Horizontal", 15))
sketch11.addConstraint(Sketcher.Constraint("Vertical", 16))
sketch11.addConstraint(Sketcher.Constraint("Horizontal", 17))
sketch11.addConstraint(Sketcher.Constraint("Vertical", 18))
sketch11.addConstraint(Sketcher.Constraint("Horizontal", 19))
sketch11.addConstraint(Sketcher.Constraint("Vertical", 20))
sketch11.addConstraint(Sketcher.Constraint("Horizontal", 21))
sketch11.addConstraint(Sketcher.Constraint("Vertical", 22))
sketch11.addConstraint(Sketcher.Constraint("Horizontal", 23))
sketch11.addConstraint(Sketcher.Constraint("Vertical", 24))
sketch11.addConstraint(Sketcher.Constraint("Horizontal", 25))
sketch11.addConstraint(Sketcher.Constraint("Vertical", 26))
sketch11.addConstraint(Sketcher.Constraint("Horizontal", 27))
sketch11.addConstraint(Sketcher.Constraint("Vertical", 28))
sketch11.addConstraint(Sketcher.Constraint("Horizontal", 29))
sketch11.addConstraint(Sketcher.Constraint("Vertical", 30))
sketch11.addConstraint(Sketcher.Constraint("Horizontal", 31))
sketch11.addConstraint(Sketcher.Constraint("Vertical", 32))
sketch11.addConstraint(Sketcher.Constraint("Horizontal", 33))
sketch11.addConstraint(Sketcher.Constraint("Vertical", 34))
sketch11.addConstraint(Sketcher.Constraint("Horizontal", 35))
sketch11.addConstraint(Sketcher.Constraint("Vertical", 36))
sketch11.addConstraint(Sketcher.Constraint("Horizontal", 37))
sketch11.addConstraint(Sketcher.Constraint("Vertical", 38))
sketch11.addConstraint(Sketcher.Constraint("Horizontal", 39))
sketch11.addConstraint(Sketcher.Constraint("Vertical", 40))
sketch11.addConstraint(Sketcher.Constraint("Horizontal", 41))
sketch11.addConstraint(Sketcher.Constraint("Vertical", 42))
sketch11.addConstraint(Sketcher.Constraint("Horizontal", 43))
sketch11.addConstraint(Sketcher.Constraint("Vertical", 44))
sketch11.addConstraint(Sketcher.Constraint("Horizontal", 45))
sketch11.addConstraint(Sketcher.Constraint("Vertical", 46))
sketch11.addConstraint(Sketcher.Constraint("Horizontal", 47))
sketch11.addConstraint(Sketcher.Constraint("Vertical", 48))
sketch11.addConstraint(Sketcher.Constraint("Horizontal", 49))
sketch11.addConstraint(Sketcher.Constraint("Vertical", 50))
sketch11.addConstraint(Sketcher.Constraint("Horizontal", 51))
sketch11.addConstraint(Sketcher.Constraint("Vertical", 52))
sketch11.addConstraint(Sketcher.Constraint("Horizontal", 53))
sketch11.addConstraint(Sketcher.Constraint("Vertical", 54))
sketch11.addConstraint(Sketcher.Constraint("Horizontal", 55))
sketch11.addConstraint(Sketcher.Constraint("Vertical", 56))
sketch11.addConstraint(Sketcher.Constraint("Horizontal", 57))
sketch11.addConstraint(Sketcher.Constraint("Vertical", 58))
sketch11.addConstraint(Sketcher.Constraint("Horizontal", 59))
sketch11.addConstraint(Sketcher.Constraint("Vertical", 60))
sketch11.addConstraint(Sketcher.Constraint("Horizontal", 61))
sketch11.addConstraint(Sketcher.Constraint("Vertical", 62))
sketch11.addConstraint(Sketcher.Constraint("Horizontal", 63))
sketch11.addConstraint(Sketcher.Constraint("Horizontal", 21, 2, 24, 2))
sketch11.addConstraint(Sketcher.Constraint("Horizontal", 23, 2, 26, 2))
sketch11.addConstraint(Sketcher.Constraint("Horizontal", 25, 2, 28, 2))
sketch11.addConstraint(Sketcher.Constraint("Horizontal", 27, 2, 30, 2))
sketch11.addConstraint(Sketcher.Constraint("Horizontal", 29, 2, 32, 2))
sketch11.addConstraint(Sketcher.Constraint("Horizontal", 31, 2, 34, 2))
sketch11.addConstraint(Sketcher.Constraint("Horizontal", 33, 2, 36, 2))
sketch11.addConstraint(Sketcher.Constraint("Horizontal", 35, 2, 38, 2))
sketch11.addConstraint(Sketcher.Constraint("Horizontal", 37, 2, 40, 2))
sketch11.addConstraint(Sketcher.Constraint("Horizontal", 39, 2, 42, 2))
sketch11.addConstraint(Sketcher.Constraint("Horizontal", 41, 2, 44, 2))
sketch11.addConstraint(Sketcher.Constraint("Horizontal", 43, 2, 46, 2))
sketch11.addConstraint(Sketcher.Constraint("Horizontal", 45, 2, 48, 2))
sketch11.addConstraint(Sketcher.Constraint("Horizontal", 47, 2, 50, 2))
sketch11.addConstraint(Sketcher.Constraint("Vertical", 3, 2, 4, 2))
sketch11.addConstraint(Sketcher.Constraint("Vertical", 2, 2, 5, 2))
sketch11.addConstraint(Sketcher.Constraint("Vertical", 7, 2, 8, 2))
sketch11.addConstraint(Sketcher.Constraint("Vertical", 6, 2, 9, 2))
sketch11.addConstraint(Sketcher.Constraint("Vertical", 11, 2, 12, 2))
sketch11.addConstraint(Sketcher.Constraint("Vertical", 10, 2, 13, 2))
sketch11.addConstraint(Sketcher.Constraint("Vertical", 15, 2, 16, 2))
sketch11.addConstraint(Sketcher.Constraint("Vertical", 14, 2, 17, 2))
sketch11.addConstraint(Sketcher.Constraint("Vertical", 59, 2, 60, 2))
sketch11.addConstraint(Sketcher.Constraint("Vertical", 58, 2, 61, 2))
sketch11.addConstraint(Sketcher.Constraint("Equal", 23, 25))
sketch11.addConstraint(Sketcher.Constraint("Equal", 27, 29))
sketch11.addConstraint(Sketcher.Constraint("Equal", 31, 33))
sketch11.addConstraint(Sketcher.Constraint("Equal", 35, 37))
sketch11.addConstraint(Sketcher.Constraint("Equal", 39, 41))
sketch11.addConstraint(Sketcher.Constraint("Equal", 43, 45))
sketch11.addConstraint(Sketcher.Constraint("Equal", 47, 49))
sketch11.addConstraint(Sketcher.Constraint("Equal", 19, 57))
sketch11.addConstraint(Sketcher.Constraint("Equal", 51, 0))
sketch11.addConstraint(Sketcher.Constraint("Equal", 2, 4))
sketch11.addConstraint(Sketcher.Constraint("Equal", 6, 8))
sketch11.addConstraint(Sketcher.Constraint("Equal", 10, 12))
sketch11.addConstraint(Sketcher.Constraint("Equal", 14, 16))
sketch11.addConstraint(Sketcher.Constraint("Equal", 63, 20))
sketch11.addConstraint(Sketcher.Constraint("Equal", 18, 56))
sketch11.addConstraint(Sketcher.Constraint("Equal", 58, 60))
sketch11.addConstraint(Sketcher.Constraint("DistanceX", 1, 1, 1, 2, 3.0))
sketch11.addConstraint(Sketcher.Constraint("DistanceX", 21, 1, 21, 2, 5.0))
sketch11.addConstraint(Sketcher.Constraint("DistanceX", 53, 1, 53, 2, 32.5))
sketch11.addConstraint(Sketcher.Constraint("DistanceY", 52, 1, 52, 2, 32.2))
sketch11.addConstraint(Sketcher.Constraint("DistanceX", 0, 2, -1, 1, 36.500993))
sketch11.addConstraint(Sketcher.Constraint("DistanceY", -1, 1, 0, 2, 25.745188))
sketch11.addConstraint(Sketcher.Constraint("DistanceY", -1, 1, 4, 2, 15.745188))
sketch11.addConstraint(Sketcher.Constraint("DistanceY", -1, 1, 8, 2, 5.745188))
sketch11.addConstraint(Sketcher.Constraint("DistanceY", 12, 2, -1, 1, 4.254812))
sketch11.addConstraint(Sketcher.Constraint("DistanceY", 16, 2, -1, 1, 14.254812))
sketch11.addConstraint(Sketcher.Constraint("DistanceX", 20, 2, -1, 1, 28.850993))
sketch11.addConstraint(Sketcher.Constraint("DistanceY", 20, 2, -1, 1, 22.839812))
sketch11.addConstraint(Sketcher.Constraint("DistanceX", 24, 2, -1, 1, 18.850993))
sketch11.addConstraint(Sketcher.Constraint("DistanceX", 28, 2, -1, 1, 8.850993))
sketch11.addConstraint(Sketcher.Constraint("DistanceX", -1, 1, 32, 2, 1.149007))
sketch11.addConstraint(Sketcher.Constraint("DistanceX", -1, 1, 36, 2, 11.149007))
sketch11.addConstraint(Sketcher.Constraint("DistanceX", -1, 1, 40, 2, 21.149007))
sketch11.addConstraint(Sketcher.Constraint("DistanceX", -1, 1, 44, 2, 31.149007))
sketch11.addConstraint(Sketcher.Constraint("DistanceX", -1, 1, 48, 2, 41.149007))
sketch11.addConstraint(Sketcher.Constraint("DistanceX", -1, 1, 52, 2, 49.699007))
sketch11.addConstraint(Sketcher.Constraint("DistanceY", -1, 1, 52, 2, 32.330188))
sketch11.addConstraint(Sketcher.Constraint("DistanceX", -1, 1, 56, 2, 50.799007))
sketch11.addConstraint(Sketcher.Constraint("DistanceY", 56, 2, -1, 1, 15.739812))
sketch11.addConstraint(Sketcher.Constraint("DistanceY", 60, 2, -1, 1, 5.739812))
pocket3 = body.newObject("PartDesign::Pocket", "Pocket002")
pocket3.Profile = sketch11
pocket3.Length = 3
pocket3.Reversed = True

doc.recompute()
